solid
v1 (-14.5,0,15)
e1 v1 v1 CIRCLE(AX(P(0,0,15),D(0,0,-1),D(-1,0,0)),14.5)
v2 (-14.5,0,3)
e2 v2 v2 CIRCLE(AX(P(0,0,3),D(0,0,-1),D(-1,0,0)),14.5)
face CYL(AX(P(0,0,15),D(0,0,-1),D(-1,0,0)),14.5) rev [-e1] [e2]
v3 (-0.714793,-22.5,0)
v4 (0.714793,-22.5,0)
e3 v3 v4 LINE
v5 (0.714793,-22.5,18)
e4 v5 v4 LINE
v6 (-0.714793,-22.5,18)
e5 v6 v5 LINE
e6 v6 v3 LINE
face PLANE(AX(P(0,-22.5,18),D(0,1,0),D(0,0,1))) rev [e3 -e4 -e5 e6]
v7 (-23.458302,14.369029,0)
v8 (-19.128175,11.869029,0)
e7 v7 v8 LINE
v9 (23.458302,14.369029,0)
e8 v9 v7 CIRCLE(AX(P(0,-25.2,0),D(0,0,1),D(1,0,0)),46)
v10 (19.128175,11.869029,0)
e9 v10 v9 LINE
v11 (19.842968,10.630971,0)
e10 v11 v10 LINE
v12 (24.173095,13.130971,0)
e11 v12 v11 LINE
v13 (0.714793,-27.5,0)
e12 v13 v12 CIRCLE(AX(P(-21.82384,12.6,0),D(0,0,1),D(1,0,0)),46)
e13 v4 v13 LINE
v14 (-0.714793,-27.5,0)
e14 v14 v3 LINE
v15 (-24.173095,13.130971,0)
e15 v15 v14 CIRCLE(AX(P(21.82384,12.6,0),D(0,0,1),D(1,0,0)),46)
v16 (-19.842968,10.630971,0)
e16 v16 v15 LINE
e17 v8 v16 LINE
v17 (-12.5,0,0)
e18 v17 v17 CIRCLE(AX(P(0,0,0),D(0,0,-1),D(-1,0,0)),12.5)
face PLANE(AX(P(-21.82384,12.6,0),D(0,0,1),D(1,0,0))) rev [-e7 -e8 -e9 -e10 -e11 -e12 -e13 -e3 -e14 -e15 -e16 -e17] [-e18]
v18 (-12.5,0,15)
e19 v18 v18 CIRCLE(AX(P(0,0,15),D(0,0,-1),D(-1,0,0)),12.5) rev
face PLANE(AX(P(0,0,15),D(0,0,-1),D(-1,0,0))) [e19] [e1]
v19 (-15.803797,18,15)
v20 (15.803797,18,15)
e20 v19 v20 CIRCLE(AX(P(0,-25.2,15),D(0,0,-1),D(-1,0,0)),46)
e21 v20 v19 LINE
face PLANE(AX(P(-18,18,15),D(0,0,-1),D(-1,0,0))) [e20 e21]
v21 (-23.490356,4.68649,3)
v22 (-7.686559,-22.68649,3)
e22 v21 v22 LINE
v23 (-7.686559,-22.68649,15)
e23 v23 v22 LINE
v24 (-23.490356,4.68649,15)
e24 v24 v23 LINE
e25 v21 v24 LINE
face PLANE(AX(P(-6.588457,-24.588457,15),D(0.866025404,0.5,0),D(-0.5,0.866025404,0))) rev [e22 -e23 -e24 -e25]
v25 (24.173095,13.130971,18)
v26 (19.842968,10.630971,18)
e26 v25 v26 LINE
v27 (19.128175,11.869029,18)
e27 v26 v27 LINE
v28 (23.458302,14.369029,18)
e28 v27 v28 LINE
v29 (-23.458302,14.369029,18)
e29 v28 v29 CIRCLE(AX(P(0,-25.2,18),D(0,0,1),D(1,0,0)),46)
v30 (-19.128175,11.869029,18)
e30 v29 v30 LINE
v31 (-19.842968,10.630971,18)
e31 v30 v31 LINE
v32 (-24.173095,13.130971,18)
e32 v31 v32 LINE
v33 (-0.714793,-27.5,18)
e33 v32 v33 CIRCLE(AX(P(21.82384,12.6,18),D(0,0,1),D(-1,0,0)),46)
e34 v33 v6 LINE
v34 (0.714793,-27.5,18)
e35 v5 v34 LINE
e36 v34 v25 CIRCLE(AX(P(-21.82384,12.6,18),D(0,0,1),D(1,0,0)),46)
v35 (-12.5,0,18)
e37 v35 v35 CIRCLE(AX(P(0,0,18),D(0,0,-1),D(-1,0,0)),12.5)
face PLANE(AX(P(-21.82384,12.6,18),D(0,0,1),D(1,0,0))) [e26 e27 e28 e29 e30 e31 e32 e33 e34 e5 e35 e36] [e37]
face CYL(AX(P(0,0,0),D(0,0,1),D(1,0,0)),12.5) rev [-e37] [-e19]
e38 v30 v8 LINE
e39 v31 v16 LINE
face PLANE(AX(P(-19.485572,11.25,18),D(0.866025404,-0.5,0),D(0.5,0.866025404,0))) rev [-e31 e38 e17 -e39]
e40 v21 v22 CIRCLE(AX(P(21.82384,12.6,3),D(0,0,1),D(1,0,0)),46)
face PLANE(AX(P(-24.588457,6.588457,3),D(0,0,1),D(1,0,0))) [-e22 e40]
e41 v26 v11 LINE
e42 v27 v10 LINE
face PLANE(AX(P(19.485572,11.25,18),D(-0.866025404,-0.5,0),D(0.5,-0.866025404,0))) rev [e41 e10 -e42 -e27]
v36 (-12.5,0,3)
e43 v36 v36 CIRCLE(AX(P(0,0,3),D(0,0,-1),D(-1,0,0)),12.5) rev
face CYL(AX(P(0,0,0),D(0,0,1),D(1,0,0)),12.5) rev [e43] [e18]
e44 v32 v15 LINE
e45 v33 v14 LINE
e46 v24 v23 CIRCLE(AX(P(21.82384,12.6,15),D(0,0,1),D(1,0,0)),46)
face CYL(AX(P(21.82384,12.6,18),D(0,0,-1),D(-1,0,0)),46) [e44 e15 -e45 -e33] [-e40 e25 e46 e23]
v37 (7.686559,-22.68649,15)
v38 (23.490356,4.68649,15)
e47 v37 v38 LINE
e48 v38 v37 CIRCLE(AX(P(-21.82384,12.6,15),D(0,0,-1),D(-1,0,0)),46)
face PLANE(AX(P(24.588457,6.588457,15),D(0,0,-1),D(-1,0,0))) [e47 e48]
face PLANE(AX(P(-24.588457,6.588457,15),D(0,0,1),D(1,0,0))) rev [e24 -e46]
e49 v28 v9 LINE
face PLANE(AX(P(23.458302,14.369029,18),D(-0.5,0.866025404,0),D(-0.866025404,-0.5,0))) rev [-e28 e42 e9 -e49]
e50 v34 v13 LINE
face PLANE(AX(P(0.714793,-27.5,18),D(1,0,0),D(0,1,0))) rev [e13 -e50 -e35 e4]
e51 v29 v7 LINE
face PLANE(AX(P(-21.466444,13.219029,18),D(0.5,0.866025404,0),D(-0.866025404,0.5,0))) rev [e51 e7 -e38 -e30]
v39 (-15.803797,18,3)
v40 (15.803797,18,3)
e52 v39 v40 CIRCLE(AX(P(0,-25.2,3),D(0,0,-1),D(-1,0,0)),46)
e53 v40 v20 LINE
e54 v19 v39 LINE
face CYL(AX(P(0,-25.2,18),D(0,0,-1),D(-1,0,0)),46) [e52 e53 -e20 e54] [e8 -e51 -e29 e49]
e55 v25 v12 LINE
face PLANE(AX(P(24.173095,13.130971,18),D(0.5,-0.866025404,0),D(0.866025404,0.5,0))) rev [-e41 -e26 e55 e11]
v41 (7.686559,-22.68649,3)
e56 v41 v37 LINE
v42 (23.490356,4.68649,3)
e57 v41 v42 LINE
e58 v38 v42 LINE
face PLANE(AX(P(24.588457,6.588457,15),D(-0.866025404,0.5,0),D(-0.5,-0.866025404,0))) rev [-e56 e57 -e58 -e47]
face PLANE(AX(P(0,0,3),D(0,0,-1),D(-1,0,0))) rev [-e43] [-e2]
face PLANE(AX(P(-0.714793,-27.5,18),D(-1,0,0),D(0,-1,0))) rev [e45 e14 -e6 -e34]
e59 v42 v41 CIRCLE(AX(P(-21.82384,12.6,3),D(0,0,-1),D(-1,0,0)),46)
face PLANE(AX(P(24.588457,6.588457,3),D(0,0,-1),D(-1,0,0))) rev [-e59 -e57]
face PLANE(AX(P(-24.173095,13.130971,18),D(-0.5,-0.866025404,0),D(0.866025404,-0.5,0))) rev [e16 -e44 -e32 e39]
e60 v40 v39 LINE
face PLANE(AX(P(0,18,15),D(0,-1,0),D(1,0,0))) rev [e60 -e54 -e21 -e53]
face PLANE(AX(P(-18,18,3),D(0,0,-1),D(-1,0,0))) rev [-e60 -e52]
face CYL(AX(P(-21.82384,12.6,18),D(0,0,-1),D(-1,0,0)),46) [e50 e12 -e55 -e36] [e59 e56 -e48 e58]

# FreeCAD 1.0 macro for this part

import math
import FreeCAD as App
import Part
import Sketcher

V = App.Vector
Q = App.Units.Quantity


def add_polygon(sketch, points):
    """Adds a closed chain of lines whose ends are joined by coincident constraints."""
    first, n = sketch.GeometryCount, len(points)
    for a, b in zip(points, points[1:] + points[:1]):
        sketch.addGeometry(Part.LineSegment(App.Vector(*a, 0), App.Vector(*b, 0)), False)
    for i in range(n):
        sketch.addConstraint(Sketcher.Constraint("Coincident", first + i, 2, first + (i + 1) % n, 1))

doc = App.newDocument("Part")
body = doc.addObject("PartDesign::Body", "Body")

sketch1 = body.newObject("Sketcher::SketchObject", "Sketch")
sketch1.AttachmentSupport = (doc.getObject("XY_Plane"), [""])
sketch1.MapMode = "FlatFace"
sketch1.addGeometry([
    Part.LineSegment(V(-22.2, 12, 0), V(-24.2, 13.1, 0)),
    Part.ArcOfCircle(Part.Circle(V(21.8, 12.6, 0), V(0, 0, 1), 46), math.radians(179), math.radians(210)),
    Part.ArcOfCircle(Part.Circle(V(21.8, 12.6, 0), V(0, 0, 1), 46), math.radians(-150), math.radians(-119)),
    Part.LineSegment(V(-0.7, -27.5, 0), V(-0.7, -22.5, 0)),
    Part.LineSegment(V(-0.7, -22.5, 0), V(0.7, -22.5, 0)),
    Part.LineSegment(V(0.7, -22.5, 0), V(0.7, -27.5, 0)),
    Part.ArcOfCircle(Part.Circle(V(-21.8, 12.6, 0), V(0, 0, 1), 46), math.radians(-61), math.radians(-30)),
    Part.ArcOfCircle(Part.Circle(V(-21.8, 12.6, 0), V(0, 0, 1), 46), math.radians(-30), math.radians(1)),
    Part.LineSegment(V(24.2, 13.1, 0), V(19.8, 10.6, 0)),
    Part.LineSegment(V(19.8, 10.6, 0), V(19.1, 11.9, 0)),
    Part.LineSegment(V(19.1, 11.9, 0), V(23.5, 14.4, 0)),
    Part.ArcOfCircle(Part.Circle(V(0, -25.2, 0), V(0, 0, 1), 46), math.radians(59), math.radians(90)),
    Part.ArcOfCircle(Part.Circle(V(0, -25.2, 0), V(0, 0, 1), 46), math.radians(90), math.radians(121)),
    Part.LineSegment(V(-23.5, 14.4, 0), V(-21.5, 13.2, 0)),
    Part.LineSegment(V(-21.5, 13.2, 0), V(-19.1, 11.9, 0)),
    Part.LineSegment(V(-19.1, 11.9, 0), V(-19.5, 11.3, 0)),
    Part.LineSegment(V(-19.5, 11.3, 0), V(-19.8, 10.6, 0)),
    Part.LineSegment(V(-19.8, 10.6, 0), V(-22.2, 12, 0)),
], False)
sketch1.addConstraint([
    Sketcher.Constraint("Coincident", 0, 2, 1, 1),
    Sketcher.Constraint("Tangent", 1, 2, 2, 1),
    Sketcher.Constraint("Coincident", 2, 2, 3, 1),
    Sketcher.Constraint("Coincident", 3, 2, 4, 1),
    Sketcher.Constraint("Coincident", 4, 2, 5, 1),
    Sketcher.Constraint("Coincident", 5, 2, 6, 1),
    Sketcher.Constraint("Tangent", 6, 2, 7, 1),
    Sketcher.Constraint("Coincident", 7, 2, 8, 1),
    Sketcher.Constraint("Coincident", 8, 2, 9, 1),
    Sketcher.Constraint("Coincident", 9, 2, 10, 1),
    Sketcher.Constraint("Coincident", 10, 2, 11, 1),
    Sketcher.Constraint("Tangent", 11, 2, 12, 1),
    Sketcher.Constraint("Coincident", 12, 2, 13, 1),
    Sketcher.Constraint("Coincident", 13, 2, 14, 1),
    Sketcher.Constraint("Coincident", 14, 2, 15, 1),
    Sketcher.Constraint("Coincident", 15, 2, 16, 1),
    Sketcher.Constraint("Coincident", 16, 2, 17, 1),
    Sketcher.Constraint("Coincident", 17, 2, 0, 1),
    Sketcher.Constraint("Vertical", 3),
    Sketcher.Constraint("Horizontal", 4),
    Sketcher.Constraint("Vertical", 5),
    Sketcher.Constraint("Equal", 1, 2),
    Sketcher.Constraint("Equal", 2, 6),
    Sketcher.Constraint("Equal", 6, 7),
    Sketcher.Constraint("Equal", 7, 11),
    Sketcher.Constraint("Equal", 11, 12),
    Sketcher.Constraint("Symmetric", 1, 3, 6, 3, -2),
    Sketcher.Constraint("Symmetric", 10, 2, 12, 2, -2),
    Sketcher.Constraint("Symmetric", 9, 2, 14, 2, -2),
    Sketcher.Constraint("Symmetric", 8, 2, 16, 2, -2),
    Sketcher.Constraint("PointOnObject", 11, 2, -2),
    Sketcher.Constraint("Perpendicular", 8, 9),
    Sketcher.Constraint("Perpendicular", 9, 10),
    Sketcher.Constraint("Parallel", 0, 13),
    Sketcher.Constraint("Parallel", 13, 14),
    Sketcher.Constraint("Perpendicular", 14, 15),
    Sketcher.Constraint("Perpendicular", 16, 17),
    Sketcher.Constraint("Horizontal", 2, 2, 5, 2),
    Sketcher.Constraint("Horizontal", 1, 2, 6, 2),
    Sketcher.Constraint("Equal", 8, 10),
    Sketcher.Constraint("Equal", 0, 13),
    Sketcher.Constraint("Equal", 15, 16),
    Sketcher.Constraint("Radius", 1, 46.0),
    Sketcher.Constraint("DistanceY", 3, 1, 3, 2, 5.0),
    Sketcher.Constraint("Angle", 0, Q("150 deg")),
    Sketcher.Constraint("Distance", 8, 5.0),
    Sketcher.Constraint("DistanceY", 1, 2, 6, 3, 23.0),
    Sketcher.Constraint("Distance", 0, 2.3),
    Sketcher.Constraint("DistanceY", -1, 1, 1, 3, 12.6),
    Sketcher.Constraint("DistanceY", 11, 3, -1, 1, 25.2),
    Sketcher.Constraint("DistanceY", 2, 2, -1, 1, 27.5),
    Sketcher.Constraint("DistanceY", -1, 1, 15, 2, 11.25),
    Sketcher.Constraint("DistanceX", -1, 1, 10, 2, 23.458302),
])
pad1 = body.newObject("PartDesign::Pad", "Pad")
pad1.Profile = sketch1
pad1.Length = 18

sketch2 = body.newObject("Sketcher::SketchObject", "Sketch001")
sketch2.AttachmentSupport = (doc.getObject("XY_Plane"), [""])
sketch2.MapMode = "FlatFace"
sketch2.AttachmentOffset = App.Placement(V(0, 0, 3), App.Rotation())
sketch2.addGeometry(Part.Circle(V(0, 0, 0), V(0, 0, 1), 14.5), False)
add_polygon(sketch2, [(-18, 18), (-18, 21), (18, 21), (18, 18)])
add_polygon(sketch2, [(27.2, 5.1), (9.2, -26.1), (6.6, -24.6), (24.6, 6.6)])
add_polygon(sketch2, [(-9.2, -26.1), (-27.2, 5.1), (-24.6, 6.6), (-6.6, -24.6)])
sketch2.addConstraint([
    Sketcher.Constraint("Vertical", 1),
    Sketcher.Constraint("Horizontal", 2),
    Sketcher.Constraint("Vertical", 3),
    Sketcher.Constraint("Horizontal", 4),
    Sketcher.Constraint("Coincident", 0, 3, -1, 1),
    Sketcher.Constraint("Symmetric", 8, 2, 9, 2, -2),
    Sketcher.Constraint("Symmetric", 7, 2, 10, 2, -2),
    Sketcher.Constraint("Symmetric", 6, 2, 11, 2, -2),
    Sketcher.Constraint("Symmetric", 5, 2, 12, 2, -2),
    Sketcher.Constraint("Perpendicular", 5, 6),
    Sketcher.Constraint("Perpendicular", 6, 7),
    Sketcher.Constraint("Perpendicular", 7, 8),
    Sketcher.Constraint("Diameter", 0, 29.0),
    Sketcher.Constraint("DistanceX", 2, 1, 2, 2, 36.0),
    Sketcher.Constraint("DistanceY", 1, 1, 1, 2, 3.0),
    Sketcher.Constraint("Angle", 5, Q("-120 deg")),
    Sketcher.Constraint("Distance", 5, 36.0),
    Sketcher.Constraint("Distance", 6, 3.0),
    Sketcher.Constraint("DistanceX", 1, 2, -1, 1, 18.0),
    Sketcher.Constraint("DistanceY", -1, 1, 1, 2, 21.0),
    Sketcher.Constraint("DistanceX", 9, 2, 6, 2, 33.774991),
    Sketcher.Constraint("DistanceY", 5, 2, -1, 1, 26.088457),
])
pocket1 = body.newObject("PartDesign::Pocket", "Pocket")
pocket1.Profile = sketch2
pocket1.Length = 12
pocket1.Reversed = True

sketch3 = body.newObject("Sketcher::SketchObject", "Sketch002")
sketch3.AttachmentSupport = (doc.getObject("XY_Plane"), [""])
sketch3.MapMode = "FlatFace"
sketch3.AttachmentOffset = App.Placement(V(0, 0, 18), App.Rotation())
sketch3.addGeometry(Part.Circle(V(0, 0, 0), V(0, 0, 1), 12), False)
sketch3.addConstraint([
    Sketcher.Constraint("Coincident", 0, 3, -1, 1),
    Sketcher.Constraint("Diameter", 0, 25.0),
])
pocket2 = body.newObject("PartDesign::Pocket", "Pocket001")
pocket2.Profile = sketch3
pocket2.Type = "ThroughAll"

doc.recompute()
